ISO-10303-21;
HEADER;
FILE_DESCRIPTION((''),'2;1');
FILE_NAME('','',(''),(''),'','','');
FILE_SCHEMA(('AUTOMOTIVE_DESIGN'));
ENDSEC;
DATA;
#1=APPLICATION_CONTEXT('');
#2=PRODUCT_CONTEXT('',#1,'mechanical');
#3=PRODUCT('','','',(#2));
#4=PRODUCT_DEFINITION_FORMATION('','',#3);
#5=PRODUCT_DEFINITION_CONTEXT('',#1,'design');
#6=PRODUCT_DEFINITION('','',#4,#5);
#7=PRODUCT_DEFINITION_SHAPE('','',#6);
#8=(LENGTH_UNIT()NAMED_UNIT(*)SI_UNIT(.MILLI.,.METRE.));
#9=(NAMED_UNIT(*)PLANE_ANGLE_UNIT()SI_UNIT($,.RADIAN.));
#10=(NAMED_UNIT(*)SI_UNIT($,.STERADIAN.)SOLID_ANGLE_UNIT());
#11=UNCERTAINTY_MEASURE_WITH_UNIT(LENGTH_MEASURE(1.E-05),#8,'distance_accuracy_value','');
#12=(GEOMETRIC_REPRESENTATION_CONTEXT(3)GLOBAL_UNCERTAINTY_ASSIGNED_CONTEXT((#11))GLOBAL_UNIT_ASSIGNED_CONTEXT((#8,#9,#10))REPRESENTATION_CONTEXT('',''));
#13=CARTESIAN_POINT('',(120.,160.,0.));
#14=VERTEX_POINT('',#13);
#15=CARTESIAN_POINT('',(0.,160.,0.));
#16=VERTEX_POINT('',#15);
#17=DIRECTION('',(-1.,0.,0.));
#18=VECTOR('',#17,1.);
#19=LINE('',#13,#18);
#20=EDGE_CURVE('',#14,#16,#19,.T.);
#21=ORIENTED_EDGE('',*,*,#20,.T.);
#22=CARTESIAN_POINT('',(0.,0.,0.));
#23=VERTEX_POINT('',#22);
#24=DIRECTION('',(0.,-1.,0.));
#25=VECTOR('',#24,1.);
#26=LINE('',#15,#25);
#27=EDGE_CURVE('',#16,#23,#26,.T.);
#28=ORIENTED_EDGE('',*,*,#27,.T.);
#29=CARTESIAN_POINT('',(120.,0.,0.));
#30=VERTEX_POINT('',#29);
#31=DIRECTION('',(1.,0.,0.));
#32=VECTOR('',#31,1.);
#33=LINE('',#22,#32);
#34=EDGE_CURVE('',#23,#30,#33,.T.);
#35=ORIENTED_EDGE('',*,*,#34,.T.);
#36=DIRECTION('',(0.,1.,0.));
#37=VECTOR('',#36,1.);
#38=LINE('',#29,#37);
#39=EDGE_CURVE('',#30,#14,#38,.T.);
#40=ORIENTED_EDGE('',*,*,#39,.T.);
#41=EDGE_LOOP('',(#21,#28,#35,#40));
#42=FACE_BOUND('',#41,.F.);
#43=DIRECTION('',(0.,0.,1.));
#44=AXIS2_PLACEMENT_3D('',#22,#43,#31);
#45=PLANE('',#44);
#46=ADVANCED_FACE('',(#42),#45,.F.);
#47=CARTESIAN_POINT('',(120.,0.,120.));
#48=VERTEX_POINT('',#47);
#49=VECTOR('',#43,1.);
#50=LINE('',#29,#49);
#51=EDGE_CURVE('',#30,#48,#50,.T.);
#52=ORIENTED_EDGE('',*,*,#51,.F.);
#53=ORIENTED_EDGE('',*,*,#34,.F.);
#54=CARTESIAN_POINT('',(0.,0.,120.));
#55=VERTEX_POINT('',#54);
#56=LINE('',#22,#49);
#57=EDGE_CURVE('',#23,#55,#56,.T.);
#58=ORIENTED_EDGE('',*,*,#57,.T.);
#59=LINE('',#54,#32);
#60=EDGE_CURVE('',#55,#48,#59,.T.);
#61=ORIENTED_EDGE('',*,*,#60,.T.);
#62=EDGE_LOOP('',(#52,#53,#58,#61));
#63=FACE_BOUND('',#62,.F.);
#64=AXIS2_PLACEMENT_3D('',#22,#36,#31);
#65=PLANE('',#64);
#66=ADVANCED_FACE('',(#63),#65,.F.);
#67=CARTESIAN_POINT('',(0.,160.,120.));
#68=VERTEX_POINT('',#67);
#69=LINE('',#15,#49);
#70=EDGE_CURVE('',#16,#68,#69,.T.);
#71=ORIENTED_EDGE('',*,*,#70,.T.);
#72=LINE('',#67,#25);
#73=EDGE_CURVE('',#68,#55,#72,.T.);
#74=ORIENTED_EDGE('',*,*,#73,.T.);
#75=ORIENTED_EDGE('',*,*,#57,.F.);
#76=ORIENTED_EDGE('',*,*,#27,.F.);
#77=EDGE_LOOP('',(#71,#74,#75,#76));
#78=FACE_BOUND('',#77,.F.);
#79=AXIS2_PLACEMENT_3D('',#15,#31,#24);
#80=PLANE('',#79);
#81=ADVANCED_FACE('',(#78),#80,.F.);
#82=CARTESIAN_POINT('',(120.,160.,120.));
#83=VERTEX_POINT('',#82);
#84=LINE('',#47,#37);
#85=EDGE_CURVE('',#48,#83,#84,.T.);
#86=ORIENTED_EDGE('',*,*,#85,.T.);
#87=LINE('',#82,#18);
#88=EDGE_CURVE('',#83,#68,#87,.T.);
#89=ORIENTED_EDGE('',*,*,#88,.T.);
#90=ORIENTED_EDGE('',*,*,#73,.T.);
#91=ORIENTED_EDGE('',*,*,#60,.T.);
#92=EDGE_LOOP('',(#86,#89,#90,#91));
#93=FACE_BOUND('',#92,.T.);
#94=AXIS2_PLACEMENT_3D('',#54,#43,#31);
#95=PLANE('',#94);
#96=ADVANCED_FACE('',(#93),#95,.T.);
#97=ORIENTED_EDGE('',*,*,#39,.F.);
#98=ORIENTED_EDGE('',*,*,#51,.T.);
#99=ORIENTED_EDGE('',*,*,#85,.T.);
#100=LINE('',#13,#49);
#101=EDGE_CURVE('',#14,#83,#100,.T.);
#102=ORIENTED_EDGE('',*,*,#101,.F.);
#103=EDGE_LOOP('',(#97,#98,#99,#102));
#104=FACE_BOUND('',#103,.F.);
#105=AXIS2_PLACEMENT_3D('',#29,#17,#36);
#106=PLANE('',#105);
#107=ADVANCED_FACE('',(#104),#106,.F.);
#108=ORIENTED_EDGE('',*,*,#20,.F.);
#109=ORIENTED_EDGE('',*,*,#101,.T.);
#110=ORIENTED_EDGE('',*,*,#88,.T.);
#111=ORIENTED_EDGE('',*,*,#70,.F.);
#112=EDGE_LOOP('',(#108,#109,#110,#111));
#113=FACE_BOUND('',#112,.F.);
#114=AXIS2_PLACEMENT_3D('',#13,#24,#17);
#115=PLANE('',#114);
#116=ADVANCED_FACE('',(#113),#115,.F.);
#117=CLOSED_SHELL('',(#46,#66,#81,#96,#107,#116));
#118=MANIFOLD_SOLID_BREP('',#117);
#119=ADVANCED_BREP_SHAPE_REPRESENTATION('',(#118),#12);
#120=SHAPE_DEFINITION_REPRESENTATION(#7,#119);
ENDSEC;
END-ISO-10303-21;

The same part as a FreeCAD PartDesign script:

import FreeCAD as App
import Part
import Sketcher

V = App.Vector
Q = App.Units.Quantity

doc = App.newDocument("Part")
params = doc.addObject("Spreadsheet::Sheet", "Params")
for row, (alias, value) in enumerate([
    ("sketch1_width", "120 mm"),
    ("sketch1_height", "160 mm"),
    ("pad1_length", "120 mm"),
], start=1):
    params.set(f"A{row}", alias)
    params.set(f"B{row}", "=" + value)
    params.setAlias(f"B{row}", alias)

body = doc.addObject("PartDesign::Body", "Body")

# Sketch on XY plane
sketch1 = body.newObject("Sketcher::SketchObject", "Sketch")
sketch1.AttachmentSupport = (doc.getObject("XY_Plane"), [""])
sketch1.MapMode = "FlatFace"
sketch1.addGeometry(Part.LineSegment(V(0, 160, 0), V(0, 0, 0)), False)
sketch1.addGeometry(Part.LineSegment(V(0, 0, 0), V(120, 0, 0)), False)
sketch1.addGeometry(Part.LineSegment(V(120, 0, 0), V(120, 160, 0)), False)
sketch1.addGeometry(Part.LineSegment(V(120, 160, 0), V(0, 160, 0)), False)
sketch1.addConstraint(Sketcher.Constraint("Coincident", 0, 2, 1, 1))
sketch1.addConstraint(Sketcher.Constraint("Coincident", 1, 2, 2, 1))
sketch1.addConstraint(Sketcher.Constraint("Coincident", 2, 2, 3, 1))
sketch1.addConstraint(Sketcher.Constraint("Coincident", 3, 2, 0, 1))
sketch1.addConstraint(Sketcher.Constraint("Vertical", 0))
sketch1.addConstraint(Sketcher.Constraint("Horizontal", 1))
sketch1.addConstraint(Sketcher.Constraint("Vertical", 2))
sketch1.addConstraint(Sketcher.Constraint("Horizontal", 3))
sketch1.addConstraint(Sketcher.Constraint("Coincident", 0, 2, -1, 1))
sketch1.addConstraint(Sketcher.Constraint("DistanceX", 1, 1, 1, 2, Q("120 mm")))
sketch1.addConstraint(Sketcher.Constraint("DistanceY", 0, 2, 0, 1, Q("160 mm")))
sketch1.setExpression("Constraints[9]", "Params.sketch1_width")
sketch1.setExpression("Constraints[10]", "Params.sketch1_height")
pad1 = body.newObject("PartDesign::Pad", "Pad")
pad1.Profile = sketch1
pad1.setExpression("Length", "Params.pad1_length")

doc.recompute()
